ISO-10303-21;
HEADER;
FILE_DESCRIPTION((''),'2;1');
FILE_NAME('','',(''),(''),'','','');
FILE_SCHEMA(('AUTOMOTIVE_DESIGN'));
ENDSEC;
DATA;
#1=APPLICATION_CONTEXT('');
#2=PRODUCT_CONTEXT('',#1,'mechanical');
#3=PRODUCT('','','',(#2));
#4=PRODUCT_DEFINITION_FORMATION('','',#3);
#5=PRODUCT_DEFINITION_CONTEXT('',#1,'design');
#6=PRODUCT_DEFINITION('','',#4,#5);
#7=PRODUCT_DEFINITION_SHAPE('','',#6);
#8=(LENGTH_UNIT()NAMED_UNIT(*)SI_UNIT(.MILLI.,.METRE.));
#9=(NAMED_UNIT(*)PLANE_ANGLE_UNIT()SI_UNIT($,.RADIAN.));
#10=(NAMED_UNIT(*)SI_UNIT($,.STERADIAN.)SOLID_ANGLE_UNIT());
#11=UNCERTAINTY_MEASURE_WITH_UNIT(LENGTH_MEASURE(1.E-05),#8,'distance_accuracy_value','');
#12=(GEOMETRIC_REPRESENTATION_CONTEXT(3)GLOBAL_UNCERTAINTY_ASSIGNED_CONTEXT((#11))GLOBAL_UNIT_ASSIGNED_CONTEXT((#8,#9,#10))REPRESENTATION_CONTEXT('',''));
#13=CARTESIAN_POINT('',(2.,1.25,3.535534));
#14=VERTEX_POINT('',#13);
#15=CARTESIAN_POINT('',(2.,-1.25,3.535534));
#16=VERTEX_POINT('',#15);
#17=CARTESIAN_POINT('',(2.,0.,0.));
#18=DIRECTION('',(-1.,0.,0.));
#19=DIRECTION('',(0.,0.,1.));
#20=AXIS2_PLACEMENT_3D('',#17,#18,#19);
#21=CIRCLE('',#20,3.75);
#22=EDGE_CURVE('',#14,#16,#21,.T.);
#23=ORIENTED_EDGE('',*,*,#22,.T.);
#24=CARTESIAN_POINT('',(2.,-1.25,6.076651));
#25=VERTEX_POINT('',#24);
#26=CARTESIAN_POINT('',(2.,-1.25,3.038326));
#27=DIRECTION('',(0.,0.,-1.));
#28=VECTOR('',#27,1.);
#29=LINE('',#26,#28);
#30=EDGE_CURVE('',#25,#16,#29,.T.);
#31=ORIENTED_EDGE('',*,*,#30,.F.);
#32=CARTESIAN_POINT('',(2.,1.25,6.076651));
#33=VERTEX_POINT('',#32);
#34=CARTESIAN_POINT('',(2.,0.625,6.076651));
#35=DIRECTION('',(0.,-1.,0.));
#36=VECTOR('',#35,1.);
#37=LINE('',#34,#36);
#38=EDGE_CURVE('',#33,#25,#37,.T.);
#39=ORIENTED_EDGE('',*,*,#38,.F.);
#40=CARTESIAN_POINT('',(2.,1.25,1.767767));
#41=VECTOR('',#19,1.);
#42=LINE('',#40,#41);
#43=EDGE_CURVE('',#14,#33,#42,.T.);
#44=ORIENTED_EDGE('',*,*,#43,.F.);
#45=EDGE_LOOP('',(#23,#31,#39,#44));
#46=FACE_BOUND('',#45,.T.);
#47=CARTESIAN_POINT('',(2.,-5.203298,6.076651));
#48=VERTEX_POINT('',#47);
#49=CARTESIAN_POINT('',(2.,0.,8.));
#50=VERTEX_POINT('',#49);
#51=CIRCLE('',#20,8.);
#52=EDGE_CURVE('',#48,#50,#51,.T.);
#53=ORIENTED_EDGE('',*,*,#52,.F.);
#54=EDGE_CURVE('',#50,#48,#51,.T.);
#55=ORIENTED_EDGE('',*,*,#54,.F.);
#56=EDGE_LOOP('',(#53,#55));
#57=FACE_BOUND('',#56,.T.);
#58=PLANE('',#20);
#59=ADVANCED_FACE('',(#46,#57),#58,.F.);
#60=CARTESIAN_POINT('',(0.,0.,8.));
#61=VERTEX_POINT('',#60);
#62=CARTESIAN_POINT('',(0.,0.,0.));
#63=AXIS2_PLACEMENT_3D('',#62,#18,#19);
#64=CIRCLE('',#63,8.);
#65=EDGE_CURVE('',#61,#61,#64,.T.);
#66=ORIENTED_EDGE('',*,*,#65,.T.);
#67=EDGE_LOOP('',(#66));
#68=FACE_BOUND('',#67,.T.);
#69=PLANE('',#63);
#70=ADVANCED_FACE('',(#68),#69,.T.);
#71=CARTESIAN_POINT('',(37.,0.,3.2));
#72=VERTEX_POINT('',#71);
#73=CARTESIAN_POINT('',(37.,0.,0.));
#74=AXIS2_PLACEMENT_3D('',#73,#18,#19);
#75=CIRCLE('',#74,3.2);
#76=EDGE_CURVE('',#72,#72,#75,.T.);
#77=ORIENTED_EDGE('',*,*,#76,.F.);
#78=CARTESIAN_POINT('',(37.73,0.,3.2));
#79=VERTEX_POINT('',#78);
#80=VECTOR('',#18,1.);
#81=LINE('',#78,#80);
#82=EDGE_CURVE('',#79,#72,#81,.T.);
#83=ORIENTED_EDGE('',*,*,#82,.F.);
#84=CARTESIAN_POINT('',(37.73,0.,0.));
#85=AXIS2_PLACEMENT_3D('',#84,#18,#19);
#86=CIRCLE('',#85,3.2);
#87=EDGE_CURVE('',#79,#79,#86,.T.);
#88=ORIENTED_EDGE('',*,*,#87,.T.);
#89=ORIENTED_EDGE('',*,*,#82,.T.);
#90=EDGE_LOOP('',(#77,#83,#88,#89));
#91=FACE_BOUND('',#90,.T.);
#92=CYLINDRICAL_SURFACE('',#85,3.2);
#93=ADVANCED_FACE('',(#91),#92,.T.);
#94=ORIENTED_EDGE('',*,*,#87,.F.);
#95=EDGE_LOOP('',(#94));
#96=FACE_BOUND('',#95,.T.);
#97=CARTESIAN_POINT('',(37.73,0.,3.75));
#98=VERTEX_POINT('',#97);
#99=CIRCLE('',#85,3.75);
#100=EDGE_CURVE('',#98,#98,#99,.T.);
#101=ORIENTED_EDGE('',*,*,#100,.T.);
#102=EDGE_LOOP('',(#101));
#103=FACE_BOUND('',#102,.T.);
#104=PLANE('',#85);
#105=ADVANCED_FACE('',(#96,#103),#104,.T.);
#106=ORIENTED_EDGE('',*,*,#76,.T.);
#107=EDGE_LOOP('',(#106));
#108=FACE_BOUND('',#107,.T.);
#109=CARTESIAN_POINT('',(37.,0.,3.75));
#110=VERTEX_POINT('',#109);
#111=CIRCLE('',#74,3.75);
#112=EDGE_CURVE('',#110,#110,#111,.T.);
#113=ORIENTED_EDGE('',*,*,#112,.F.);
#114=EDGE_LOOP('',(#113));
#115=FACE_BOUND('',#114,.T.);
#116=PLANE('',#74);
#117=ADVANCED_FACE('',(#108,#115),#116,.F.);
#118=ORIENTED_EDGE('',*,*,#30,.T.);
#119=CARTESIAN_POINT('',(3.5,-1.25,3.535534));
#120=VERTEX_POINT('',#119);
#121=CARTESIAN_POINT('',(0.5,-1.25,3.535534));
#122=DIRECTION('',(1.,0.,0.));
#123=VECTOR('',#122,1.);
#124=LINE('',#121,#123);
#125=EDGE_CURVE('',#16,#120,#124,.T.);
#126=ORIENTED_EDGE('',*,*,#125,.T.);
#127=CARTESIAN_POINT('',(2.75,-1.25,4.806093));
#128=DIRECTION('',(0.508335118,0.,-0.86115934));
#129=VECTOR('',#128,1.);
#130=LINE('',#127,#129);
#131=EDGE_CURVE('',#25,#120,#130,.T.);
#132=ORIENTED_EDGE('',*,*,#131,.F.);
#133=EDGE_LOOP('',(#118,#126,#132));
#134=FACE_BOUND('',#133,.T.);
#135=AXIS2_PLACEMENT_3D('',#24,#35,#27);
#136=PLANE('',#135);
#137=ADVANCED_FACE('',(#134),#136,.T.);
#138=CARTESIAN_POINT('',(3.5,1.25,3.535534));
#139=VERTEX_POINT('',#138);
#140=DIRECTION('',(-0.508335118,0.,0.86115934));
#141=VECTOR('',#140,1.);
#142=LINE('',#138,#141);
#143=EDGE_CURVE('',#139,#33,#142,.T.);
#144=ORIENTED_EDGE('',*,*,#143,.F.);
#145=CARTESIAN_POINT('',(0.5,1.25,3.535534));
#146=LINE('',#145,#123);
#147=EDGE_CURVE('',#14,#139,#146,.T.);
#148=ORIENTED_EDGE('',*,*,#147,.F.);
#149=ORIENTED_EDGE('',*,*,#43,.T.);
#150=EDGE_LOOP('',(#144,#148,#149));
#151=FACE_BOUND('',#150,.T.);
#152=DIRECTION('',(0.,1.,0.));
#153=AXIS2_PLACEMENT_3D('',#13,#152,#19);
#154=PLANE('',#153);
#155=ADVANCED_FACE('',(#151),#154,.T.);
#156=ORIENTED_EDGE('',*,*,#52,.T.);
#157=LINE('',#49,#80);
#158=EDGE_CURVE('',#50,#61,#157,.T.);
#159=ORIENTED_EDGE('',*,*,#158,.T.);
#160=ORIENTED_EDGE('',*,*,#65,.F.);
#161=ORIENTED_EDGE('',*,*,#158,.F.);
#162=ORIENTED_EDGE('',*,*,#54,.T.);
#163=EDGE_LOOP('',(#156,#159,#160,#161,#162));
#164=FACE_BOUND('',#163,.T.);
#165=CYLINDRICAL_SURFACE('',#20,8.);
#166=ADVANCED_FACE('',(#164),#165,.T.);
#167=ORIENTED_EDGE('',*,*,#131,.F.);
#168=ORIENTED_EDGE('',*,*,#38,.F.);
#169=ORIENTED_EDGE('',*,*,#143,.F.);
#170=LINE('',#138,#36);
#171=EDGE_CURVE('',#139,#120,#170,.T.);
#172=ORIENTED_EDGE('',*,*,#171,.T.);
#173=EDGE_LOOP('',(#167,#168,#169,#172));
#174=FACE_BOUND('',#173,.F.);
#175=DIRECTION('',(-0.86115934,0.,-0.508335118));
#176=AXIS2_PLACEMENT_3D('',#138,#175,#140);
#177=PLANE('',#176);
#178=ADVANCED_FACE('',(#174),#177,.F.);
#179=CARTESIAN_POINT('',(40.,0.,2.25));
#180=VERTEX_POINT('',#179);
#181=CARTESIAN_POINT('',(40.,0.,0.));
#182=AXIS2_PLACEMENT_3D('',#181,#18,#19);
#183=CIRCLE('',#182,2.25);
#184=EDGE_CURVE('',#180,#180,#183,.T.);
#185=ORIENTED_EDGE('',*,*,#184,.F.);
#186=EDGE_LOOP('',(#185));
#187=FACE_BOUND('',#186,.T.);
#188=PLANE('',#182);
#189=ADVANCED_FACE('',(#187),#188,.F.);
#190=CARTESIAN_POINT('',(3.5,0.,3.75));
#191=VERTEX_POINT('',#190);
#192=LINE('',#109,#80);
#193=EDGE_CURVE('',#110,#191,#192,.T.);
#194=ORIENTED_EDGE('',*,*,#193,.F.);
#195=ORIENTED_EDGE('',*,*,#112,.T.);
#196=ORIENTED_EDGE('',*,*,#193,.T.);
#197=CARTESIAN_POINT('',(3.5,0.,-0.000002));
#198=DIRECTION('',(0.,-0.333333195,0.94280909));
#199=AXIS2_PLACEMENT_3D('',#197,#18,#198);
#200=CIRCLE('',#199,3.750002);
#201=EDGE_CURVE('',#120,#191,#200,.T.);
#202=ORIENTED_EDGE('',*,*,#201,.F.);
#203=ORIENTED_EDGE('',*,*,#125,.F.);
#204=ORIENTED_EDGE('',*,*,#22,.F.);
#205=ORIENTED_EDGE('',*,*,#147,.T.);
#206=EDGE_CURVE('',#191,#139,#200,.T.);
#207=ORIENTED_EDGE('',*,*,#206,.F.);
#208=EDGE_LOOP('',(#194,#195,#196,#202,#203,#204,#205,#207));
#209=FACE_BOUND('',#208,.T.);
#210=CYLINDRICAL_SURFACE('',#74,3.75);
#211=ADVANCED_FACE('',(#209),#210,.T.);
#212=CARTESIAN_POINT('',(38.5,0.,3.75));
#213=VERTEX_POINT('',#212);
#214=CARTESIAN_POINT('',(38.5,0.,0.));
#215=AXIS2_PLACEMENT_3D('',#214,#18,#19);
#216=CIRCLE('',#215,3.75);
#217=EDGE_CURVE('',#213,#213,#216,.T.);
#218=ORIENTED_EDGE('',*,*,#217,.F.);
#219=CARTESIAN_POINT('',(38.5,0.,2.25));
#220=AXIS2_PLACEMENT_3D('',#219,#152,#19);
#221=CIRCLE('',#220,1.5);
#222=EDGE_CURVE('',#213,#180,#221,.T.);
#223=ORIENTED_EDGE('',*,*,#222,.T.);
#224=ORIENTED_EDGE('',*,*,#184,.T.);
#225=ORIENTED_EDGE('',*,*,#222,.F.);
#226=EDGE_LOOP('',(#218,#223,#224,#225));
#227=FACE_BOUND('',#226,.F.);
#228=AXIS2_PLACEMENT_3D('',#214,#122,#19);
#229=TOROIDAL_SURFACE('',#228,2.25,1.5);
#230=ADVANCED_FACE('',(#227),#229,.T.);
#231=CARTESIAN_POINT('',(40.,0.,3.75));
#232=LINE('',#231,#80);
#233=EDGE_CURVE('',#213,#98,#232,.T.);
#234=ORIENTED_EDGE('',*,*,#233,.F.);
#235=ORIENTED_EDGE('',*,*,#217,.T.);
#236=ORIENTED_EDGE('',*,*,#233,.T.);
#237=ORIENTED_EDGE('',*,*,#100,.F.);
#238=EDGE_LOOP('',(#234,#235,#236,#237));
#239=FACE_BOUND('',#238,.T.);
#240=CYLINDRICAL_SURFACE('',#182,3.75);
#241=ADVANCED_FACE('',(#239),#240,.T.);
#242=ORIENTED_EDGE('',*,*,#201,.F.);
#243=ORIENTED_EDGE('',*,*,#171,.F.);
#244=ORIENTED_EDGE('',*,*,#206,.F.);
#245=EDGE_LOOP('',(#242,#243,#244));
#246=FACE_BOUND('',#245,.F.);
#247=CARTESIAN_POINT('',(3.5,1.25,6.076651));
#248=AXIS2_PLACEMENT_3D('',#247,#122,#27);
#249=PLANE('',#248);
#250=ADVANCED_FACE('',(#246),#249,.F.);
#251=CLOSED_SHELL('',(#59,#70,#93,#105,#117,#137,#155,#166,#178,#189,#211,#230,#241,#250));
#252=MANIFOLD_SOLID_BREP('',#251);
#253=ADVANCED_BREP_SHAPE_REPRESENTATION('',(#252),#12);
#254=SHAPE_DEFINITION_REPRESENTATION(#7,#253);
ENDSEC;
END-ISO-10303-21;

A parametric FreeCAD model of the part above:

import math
import FreeCAD as App
import Part
import Sketcher
from FreeCAD import Vector


def edges_at(feature, points):
    """Names of the edges that pass closest to the given points."""
    edges = feature.Shape.Edges
    near = lambda p: min(range(len(edges)), key=lambda i: edges[i].distToShape(Part.Vertex(*p))[0])
    return sorted({f"Edge{near(p) + 1}" for p in points})

doc = App.newDocument("Part")
body = doc.addObject("PartDesign::Body", "Body")

# Sketch on XZ plane
sketch1 = body.newObject("Sketcher::SketchObject", "Sketch")
sketch1.AttachmentSupport = (doc.getObject("XZ_Plane"), [""])
sketch1.MapMode = "FlatFace"
sketch1.addGeometry(Part.LineSegment(Vector(0, 8, 0), Vector(0, 0, 0)), False)
sketch1.addGeometry(Part.LineSegment(Vector(0, 0, 0), Vector(40, 0, 0)), False)
sketch1.addGeometry(Part.LineSegment(Vector(40, 0, 0), Vector(40, 3.8, 0)), False)
sketch1.addGeometry(Part.LineSegment(Vector(40, 3.8, 0), Vector(37.7, 3.8, 0)), False)
sketch1.addGeometry(Part.LineSegment(Vector(37.7, 3.8, 0), Vector(37.7, 3.2, 0)), False)
sketch1.addGeometry(Part.LineSegment(Vector(37.7, 3.2, 0), Vector(37, 3.2, 0)), False)
sketch1.addGeometry(Part.LineSegment(Vector(37, 3.2, 0), Vector(37, 3.8, 0)), False)
sketch1.addGeometry(Part.LineSegment(Vector(37, 3.8, 0), Vector(2, 3.8, 0)), False)
sketch1.addGeometry(Part.LineSegment(Vector(2, 3.8, 0), Vector(2, 8, 0)), False)
sketch1.addGeometry(Part.LineSegment(Vector(2, 8, 0), Vector(0, 8, 0)), False)
sketch1.addConstraint(Sketcher.Constraint("Coincident", 0, 2, 1, 1))
sketch1.addConstraint(Sketcher.Constraint("Coincident", 1, 2, 2, 1))
sketch1.addConstraint(Sketcher.Constraint("Coincident", 2, 2, 3, 1))
sketch1.addConstraint(Sketcher.Constraint("Coincident", 3, 2, 4, 1))
sketch1.addConstraint(Sketcher.Constraint("Coincident", 4, 2, 5, 1))
sketch1.addConstraint(Sketcher.Constraint("Coincident", 5, 2, 6, 1))
sketch1.addConstraint(Sketcher.Constraint("Coincident", 6, 2, 7, 1))
sketch1.addConstraint(Sketcher.Constraint("Coincident", 7, 2, 8, 1))
sketch1.addConstraint(Sketcher.Constraint("Coincident", 8, 2, 9, 1))
sketch1.addConstraint(Sketcher.Constraint("Coincident", 9, 2, 0, 1))
sketch1.addConstraint(Sketcher.Constraint("Vertical", 0))
sketch1.addConstraint(Sketcher.Constraint("Horizontal", 1))
sketch1.addConstraint(Sketcher.Constraint("Vertical", 2))
sketch1.addConstraint(Sketcher.Constraint("Horizontal", 3))
sketch1.addConstraint(Sketcher.Constraint("Vertical", 4))
sketch1.addConstraint(Sketcher.Constraint("Horizontal", 5))
sketch1.addConstraint(Sketcher.Constraint("Vertical", 6))
sketch1.addConstraint(Sketcher.Constraint("Horizontal", 7))
sketch1.addConstraint(Sketcher.Constraint("Vertical", 8))
sketch1.addConstraint(Sketcher.Constraint("Horizontal", 9))
sketch1.addConstraint(Sketcher.Constraint("Coincident", 0, 2, -1, 1))
sketch1.addConstraint(Sketcher.Constraint("Horizontal", 3, 2, 6, 2))
sketch1.addConstraint(Sketcher.Constraint("DistanceX", 1, 1, 1, 2, 40.0))
sketch1.addConstraint(Sketcher.Constraint("DistanceX", 7, 2, 7, 1, 35.0))
sketch1.addConstraint(Sketcher.Constraint("DistanceX", 9, 2, 9, 1, 2.0))
sketch1.addConstraint(Sketcher.Constraint("DistanceY", 0, 2, 0, 1, 8.0))
sketch1.addConstraint(Sketcher.Constraint("DistanceX", 3, 2, 3, 1, 2.27))
sketch1.addConstraint(Sketcher.Constraint("DistanceY", 2, 1, 2, 2, 3.75))
sketch1.addConstraint(Sketcher.Constraint("DistanceY", 4, 2, 4, 1, 0.55))
revolution = body.newObject("PartDesign::Revolution", "Revolution")
revolution.Profile = sketch1
revolution.ReferenceAxis = (sketch1, ["H_Axis"])
revolution.Angle = 360

# Sketch on YZ plane
sketch2 = body.newObject("Sketcher::SketchObject", "Sketch001")
sketch2.AttachmentSupport = (doc.getObject("YZ_Plane"), [""])
sketch2.MapMode = "FlatFace"
sketch2.AttachmentOffset = App.Placement(Vector(0, 0, 2), App.Rotation())
sketch2.addGeometry(Part.LineSegment(Vector(-1.2, 6.1, 0), Vector(-1.2, 3.5, 0)), False)
sketch2.addGeometry(Part.ArcOfCircle(Part.Circle(Vector(0, 0, 0), Vector(0, 0, 1), 3.8), math.radians(71), math.radians(109)), False)
sketch2.addGeometry(Part.LineSegment(Vector(1.2, 3.5, 0), Vector(1.2, 6.1, 0)), False)
sketch2.addGeometry(Part.LineSegment(Vector(1.2, 6.1, 0), Vector(-1.2, 6.1, 0)), False)
sketch2.addConstraint(Sketcher.Constraint("Coincident", 0, 2, 1, 2))
sketch2.addConstraint(Sketcher.Constraint("Coincident", 1, 1, 2, 1))
sketch2.addConstraint(Sketcher.Constraint("Coincident", 2, 2, 3, 1))
sketch2.addConstraint(Sketcher.Constraint("Coincident", 3, 2, 0, 1))
sketch2.addConstraint(Sketcher.Constraint("Vertical", 0))
sketch2.addConstraint(Sketcher.Constraint("Vertical", 2))
sketch2.addConstraint(Sketcher.Constraint("Horizontal", 3))
sketch2.addConstraint(Sketcher.Constraint("Coincident", 1, 3, -1, 1))
sketch2.addConstraint(Sketcher.Constraint("Horizontal", 0, 2, 1, 1))
sketch2.addConstraint(Sketcher.Constraint("Radius", 1, 3.750002))
sketch2.addConstraint(Sketcher.Constraint("DistanceX", 3, 2, 3, 1, 2.5))
sketch2.addConstraint(Sketcher.Constraint("DistanceY", 0, 2, 0, 1, 2.541117))
pad1 = body.newObject("PartDesign::Pad", "Pad")
pad1.Profile = sketch2
pad1.Length = 3
pad1.Midplane = True

# Sketch on XZ plane
sketch3 = body.newObject("Sketcher::SketchObject", "Sketch002")
sketch3.AttachmentSupport = (doc.getObject("XZ_Plane"), [""])
sketch3.MapMode = "FlatFace"
sketch3.AttachmentOffset = App.Placement(Vector(0, 0, -1.25), App.Rotation())
sketch3.addGeometry(Part.LineSegment(Vector(3.5, 3.5, 0), Vector(2, 6.1, 0)), False)
sketch3.addGeometry(Part.LineSegment(Vector(2, 6.1, 0), Vector(3.5, 6.1, 0)), False)
sketch3.addGeometry(Part.LineSegment(Vector(3.5, 6.1, 0), Vector(3.5, 3.5, 0)), False)
sketch3.addConstraint(Sketcher.Constraint("Coincident", 0, 2, 1, 1))
sketch3.addConstraint(Sketcher.Constraint("Coincident", 1, 2, 2, 1))
sketch3.addConstraint(Sketcher.Constraint("Coincident", 2, 2, 0, 1))
sketch3.addConstraint(Sketcher.Constraint("Horizontal", 1))
sketch3.addConstraint(Sketcher.Constraint("Vertical", 2))
sketch3.addConstraint(Sketcher.Constraint("DistanceX", 1, 1, 1, 2, 1.5))
sketch3.addConstraint(Sketcher.Constraint("DistanceX", -1, 1, 0, 2, 2.0))
sketch3.addConstraint(Sketcher.Constraint("Distance", 0, 2.950809))
sketch3.addConstraint(Sketcher.Constraint("DistanceY", -1, 1, 0, 2, 6.076651))
pocket1 = body.newObject("PartDesign::Pocket", "Pocket")
pocket1.Profile = sketch3
pocket1.Length = 25
pocket1.Reversed = True
doc.recompute()

fillet = body.newObject("PartDesign::Fillet", "Fillet")
fillet.Base = (pocket1, edges_at(pocket1, [(40, 0, -3.75)]))
fillet.Radius = 1.5

doc.recompute()
